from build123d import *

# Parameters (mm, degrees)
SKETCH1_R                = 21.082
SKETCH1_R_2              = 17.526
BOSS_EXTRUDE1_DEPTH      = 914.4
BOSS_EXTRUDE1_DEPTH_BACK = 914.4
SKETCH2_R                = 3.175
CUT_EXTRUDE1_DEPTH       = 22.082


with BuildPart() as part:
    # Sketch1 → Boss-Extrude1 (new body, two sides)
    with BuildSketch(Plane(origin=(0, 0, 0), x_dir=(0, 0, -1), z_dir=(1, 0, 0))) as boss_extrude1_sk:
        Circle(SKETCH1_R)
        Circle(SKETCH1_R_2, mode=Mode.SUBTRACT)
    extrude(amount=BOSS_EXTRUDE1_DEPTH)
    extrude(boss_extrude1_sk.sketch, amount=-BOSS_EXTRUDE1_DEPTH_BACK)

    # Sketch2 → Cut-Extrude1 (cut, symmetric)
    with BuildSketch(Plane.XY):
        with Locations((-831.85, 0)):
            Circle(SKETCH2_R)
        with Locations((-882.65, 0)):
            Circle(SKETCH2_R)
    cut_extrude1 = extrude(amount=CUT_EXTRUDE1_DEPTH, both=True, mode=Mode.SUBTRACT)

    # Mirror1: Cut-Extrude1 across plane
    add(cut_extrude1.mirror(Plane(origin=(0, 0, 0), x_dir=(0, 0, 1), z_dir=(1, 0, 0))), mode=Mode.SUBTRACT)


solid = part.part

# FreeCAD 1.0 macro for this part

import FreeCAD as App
import Part
import Sketcher
from FreeCAD import Vector
Q = App.Units.Quantity

doc = App.newDocument("Part")
body = doc.addObject("PartDesign::Body", "Body")

# Sketch on YZ plane
sketch1 = doc.addObject("Sketcher::SketchObject", "Sketch")
body.addObject(sketch1)
sketch1.AttachmentSupport = (doc.YZ_Plane, [""])
sketch1.MapMode = "FlatFace"
sketch1.addGeometry(Part.Circle(Vector(0, 0, 0), Vector(0, 0, 1), 21), False)
sketch1.addGeometry(Part.Circle(Vector(0, 0, 0), Vector(0, 0, 1), 18), False)
sketch1.addConstraint(Sketcher.Constraint("Coincident", 0, 3, -1, 1))
sketch1.addConstraint(Sketcher.Constraint("Coincident", 1, 3, -1, 1))
sketch1.addConstraint(Sketcher.Constraint("Diameter", 0, Q("1.66 in")))
sketch1.addConstraint(Sketcher.Constraint("Diameter", 1, Q("1.38 in")))
pad1 = doc.addObject("PartDesign::Pad", "Pad")
body.addObject(pad1)
pad1.Profile = sketch1
pad1.Type = "TwoLengths"
pad1.Length = Q("36 in")
pad1.Length2 = Q("36 in")

# Sketch on XY plane
sketch2 = doc.addObject("Sketcher::SketchObject", "Sketch001")
body.addObject(sketch2)
sketch2.AttachmentSupport = (doc.XY_Plane, [""])
sketch2.MapMode = "FlatFace"
sketch2.addGeometry(Part.Circle(Vector(-831.9, 0, 0), Vector(0, 0, 1), 3.2), False)
sketch2.addGeometry(Part.Circle(Vector(-882.6, 0, 0), Vector(0, 0, 1), 3.2), False)
sketch2.addConstraint(Sketcher.Constraint("Equal", 0, 1))
sketch2.addConstraint(Sketcher.Constraint("PointOnObject", 0, 3, -1))
sketch2.addConstraint(Sketcher.Constraint("PointOnObject", 1, 3, -1))
sketch2.addConstraint(Sketcher.Constraint("Diameter", 0, Q("0.25 in")))
sketch2.addConstraint(Sketcher.Constraint("DistanceX", 1, 3, 0, 3, Q("2 in")))
sketch2.addConstraint(Sketcher.Constraint("DistanceX", 0, 3, -1, 1, Q("32.75 in")))
pocket1 = doc.addObject("PartDesign::Pocket", "Pocket")
body.addObject(pocket1)
pocket1.Profile = sketch2
pocket1.Length = 44.164
pocket1.Midplane = True
doc.recompute()

mirrored = doc.addObject("PartDesign::Mirrored", "Mirrored")
body.addObject(mirrored)
mirrored.Originals = [pocket1]
mirrored.MirrorPlane = (doc.YZ_Plane, [""])
body.Tip = mirrored

doc.recompute()
